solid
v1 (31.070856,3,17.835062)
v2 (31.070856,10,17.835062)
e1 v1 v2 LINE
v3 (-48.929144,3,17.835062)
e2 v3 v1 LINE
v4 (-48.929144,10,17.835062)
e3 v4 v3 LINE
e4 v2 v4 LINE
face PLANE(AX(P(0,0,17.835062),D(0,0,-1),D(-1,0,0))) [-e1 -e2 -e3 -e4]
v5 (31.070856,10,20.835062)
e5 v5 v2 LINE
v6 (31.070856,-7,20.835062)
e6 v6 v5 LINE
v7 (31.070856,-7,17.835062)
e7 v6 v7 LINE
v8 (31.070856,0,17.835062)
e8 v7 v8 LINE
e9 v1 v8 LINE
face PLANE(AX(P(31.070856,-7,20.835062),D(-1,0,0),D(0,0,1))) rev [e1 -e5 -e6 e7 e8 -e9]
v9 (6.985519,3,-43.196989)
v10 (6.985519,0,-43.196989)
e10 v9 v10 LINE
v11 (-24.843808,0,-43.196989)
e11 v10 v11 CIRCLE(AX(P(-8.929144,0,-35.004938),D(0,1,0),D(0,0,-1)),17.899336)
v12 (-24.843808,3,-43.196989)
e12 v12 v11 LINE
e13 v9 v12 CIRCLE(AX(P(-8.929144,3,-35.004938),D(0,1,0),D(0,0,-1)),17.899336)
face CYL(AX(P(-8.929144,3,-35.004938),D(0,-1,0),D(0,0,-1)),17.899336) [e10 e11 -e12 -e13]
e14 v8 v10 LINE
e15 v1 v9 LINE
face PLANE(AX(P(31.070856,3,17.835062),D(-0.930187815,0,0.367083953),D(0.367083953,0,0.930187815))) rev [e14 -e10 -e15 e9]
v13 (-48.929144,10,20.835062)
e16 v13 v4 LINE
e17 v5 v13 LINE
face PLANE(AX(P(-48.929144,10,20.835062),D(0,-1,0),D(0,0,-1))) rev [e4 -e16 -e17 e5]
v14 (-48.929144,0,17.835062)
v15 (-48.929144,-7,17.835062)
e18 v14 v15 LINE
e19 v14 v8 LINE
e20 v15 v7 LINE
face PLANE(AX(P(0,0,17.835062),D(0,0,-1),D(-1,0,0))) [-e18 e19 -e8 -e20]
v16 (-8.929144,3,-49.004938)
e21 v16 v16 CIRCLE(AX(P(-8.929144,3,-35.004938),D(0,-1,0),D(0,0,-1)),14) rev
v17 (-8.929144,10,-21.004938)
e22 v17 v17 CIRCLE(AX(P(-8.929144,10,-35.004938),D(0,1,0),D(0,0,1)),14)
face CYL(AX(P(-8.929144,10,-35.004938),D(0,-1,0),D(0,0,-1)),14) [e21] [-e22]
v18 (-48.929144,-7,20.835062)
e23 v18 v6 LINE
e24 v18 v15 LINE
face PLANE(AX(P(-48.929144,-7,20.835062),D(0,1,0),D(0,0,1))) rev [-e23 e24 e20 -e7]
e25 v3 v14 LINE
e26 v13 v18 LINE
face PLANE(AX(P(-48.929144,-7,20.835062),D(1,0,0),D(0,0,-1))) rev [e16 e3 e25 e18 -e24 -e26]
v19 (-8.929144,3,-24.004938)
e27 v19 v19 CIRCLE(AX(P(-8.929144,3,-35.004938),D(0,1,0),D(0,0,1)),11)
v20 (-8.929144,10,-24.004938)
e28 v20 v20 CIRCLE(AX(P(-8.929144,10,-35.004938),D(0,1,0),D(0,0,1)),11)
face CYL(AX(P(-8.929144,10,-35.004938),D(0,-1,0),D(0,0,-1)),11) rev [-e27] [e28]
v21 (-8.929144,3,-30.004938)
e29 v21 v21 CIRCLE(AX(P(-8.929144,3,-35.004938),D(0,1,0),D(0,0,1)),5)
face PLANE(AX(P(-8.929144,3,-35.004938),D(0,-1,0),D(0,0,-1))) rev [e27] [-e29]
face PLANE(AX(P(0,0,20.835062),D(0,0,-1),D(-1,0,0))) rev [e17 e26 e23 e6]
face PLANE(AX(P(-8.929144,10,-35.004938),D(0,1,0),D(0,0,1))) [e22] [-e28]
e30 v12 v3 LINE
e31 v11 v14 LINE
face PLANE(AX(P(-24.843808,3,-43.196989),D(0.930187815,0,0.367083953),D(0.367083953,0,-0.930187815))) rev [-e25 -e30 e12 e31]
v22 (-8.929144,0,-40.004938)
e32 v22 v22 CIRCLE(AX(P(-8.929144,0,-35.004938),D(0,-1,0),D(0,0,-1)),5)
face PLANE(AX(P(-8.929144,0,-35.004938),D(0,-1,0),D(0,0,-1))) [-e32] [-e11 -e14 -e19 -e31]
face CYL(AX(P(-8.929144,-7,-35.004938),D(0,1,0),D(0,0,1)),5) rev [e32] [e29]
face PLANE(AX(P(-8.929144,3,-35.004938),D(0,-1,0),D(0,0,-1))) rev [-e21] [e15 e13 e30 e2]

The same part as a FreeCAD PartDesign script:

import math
import FreeCAD as App
import Part
import Sketcher

V = App.Vector
Q = App.Units.Quantity

doc = App.newDocument("Part")
body = doc.addObject("PartDesign::Body", "Body")

# Sketch on XZ plane
sketch1 = body.newObject("Sketcher::SketchObject", "Sketch")
sketch1.AttachmentSupport = (doc.getObject("XZ_Plane"), [""])
sketch1.MapMode = "FlatFace"
sketch1.addGeometry(Part.LineSegment(V(-49, 18, 0), V(31, 18, 0)), False)
sketch1.addGeometry(Part.LineSegment(V(31, 18, 0), V(7, -43, 0)), False)
sketch1.addGeometry(Part.ArcOfCircle(Part.Circle(V(-9, -35, 0), V(0, 0, 1), 18), math.radians(-153), math.radians(-27)), False)
sketch1.addGeometry(Part.LineSegment(V(-25, -43, 0), V(-49, 18, 0)), False)
sketch1.addConstraint(Sketcher.Constraint("Coincident", 0, 2, 1, 1))
sketch1.addConstraint(Sketcher.Constraint("Coincident", 1, 2, 2, 2))
sketch1.addConstraint(Sketcher.Constraint("Coincident", 2, 1, 3, 1))
sketch1.addConstraint(Sketcher.Constraint("Coincident", 3, 2, 0, 1))
sketch1.addConstraint(Sketcher.Constraint("Horizontal", 0))
sketch1.addConstraint(Sketcher.Constraint("Horizontal", 1, 2, 2, 1))
sketch1.addConstraint(Sketcher.Constraint("Equal", 1, 3))
sketch1.addConstraint(Sketcher.Constraint("DistanceX", 0, 1, 0, 2, Q("80 mm")))
sketch1.addConstraint(Sketcher.Constraint("DistanceY", 2, 3, 0, 2, Q("52.84 mm")))
sketch1.addConstraint(Sketcher.Constraint("Radius", 2, Q("17.899336 mm")))
sketch1.addConstraint(Sketcher.Constraint("Distance", 1, Q("65.612611 mm")))
sketch1.addConstraint(Sketcher.Constraint("DistanceX", -1, 1, 1, 2, Q("6.985519 mm")))
sketch1.addConstraint(Sketcher.Constraint("DistanceY", 1, 2, -1, 1, Q("43.196989 mm")))
pad1 = body.newObject("PartDesign::Pad", "Pad")
pad1.Profile = sketch1
pad1.Length = 3
pad1.Reversed = True

# Sketch on XZ plane
sketch2 = body.newObject("Sketcher::SketchObject", "Sketch001")
sketch2.AttachmentSupport = (doc.getObject("XZ_Plane"), [""])
sketch2.MapMode = "FlatFace"
sketch2.AttachmentOffset = App.Placement(V(0, 0, -3), App.Rotation())
sketch2.addGeometry(Part.Circle(V(-9, -35, 0), V(0, 0, 1), 14), False)
sketch2.addGeometry(Part.Circle(V(-9, -35, 0), V(0, 0, 1), 11), False)
sketch2.addConstraint(Sketcher.Constraint("Coincident", 1, 3, 0, 3))
sketch2.addConstraint(Sketcher.Constraint("Diameter", 0, Q("28 mm")))
sketch2.addConstraint(Sketcher.Constraint("Diameter", 1, Q("22 mm")))
sketch2.addConstraint(Sketcher.Constraint("DistanceX", 0, 3, -1, 1, Q("8.929144 mm")))
sketch2.addConstraint(Sketcher.Constraint("DistanceY", 0, 3, -1, 1, Q("35.004938 mm")))
pad2 = body.newObject("PartDesign::Pad", "Pad001")
pad2.Profile = sketch2
pad2.Length = 7
pad2.Reversed = True

# Sketch on XY plane
sketch3 = body.newObject("Sketcher::SketchObject", "Sketch002")
sketch3.AttachmentSupport = (doc.getObject("XY_Plane"), [""])
sketch3.MapMode = "FlatFace"
sketch3.AttachmentOffset = App.Placement(V(0, 0, 17.835062), App.Rotation())
sketch3.addGeometry(Part.LineSegment(V(-49, 10, 0), V(-49, -7, 0)), False)
sketch3.addGeometry(Part.LineSegment(V(-49, -7, 0), V(31, -7, 0)), False)
sketch3.addGeometry(Part.LineSegment(V(31, -7, 0), V(31, 10, 0)), False)
sketch3.addGeometry(Part.LineSegment(V(31, 10, 0), V(-49, 10, 0)), False)
sketch3.addConstraint(Sketcher.Constraint("Coincident", 0, 2, 1, 1))
sketch3.addConstraint(Sketcher.Constraint("Coincident", 1, 2, 2, 1))
sketch3.addConstraint(Sketcher.Constraint("Coincident", 2, 2, 3, 1))
sketch3.addConstraint(Sketcher.Constraint("Coincident", 3, 2, 0, 1))
sketch3.addConstraint(Sketcher.Constraint("Vertical", 0))
sketch3.addConstraint(Sketcher.Constraint("Horizontal", 1))
sketch3.addConstraint(Sketcher.Constraint("Vertical", 2))
sketch3.addConstraint(Sketcher.Constraint("Horizontal", 3))
sketch3.addConstraint(Sketcher.Constraint("DistanceX", 1, 1, 1, 2, Q("80 mm")))
sketch3.addConstraint(Sketcher.Constraint("DistanceY", 0, 2, 0, 1, Q("17 mm")))
sketch3.addConstraint(Sketcher.Constraint("DistanceY", 0, 2, -1, 1, Q("7 mm")))
sketch3.addConstraint(Sketcher.Constraint("DistanceX", 0, 2, -1, 1, Q("48.929144 mm")))
pad3 = body.newObject("PartDesign::Pad", "Pad002")
pad3.Profile = sketch3
pad3.Length = 3

# Sketch on XZ plane
sketch4 = body.newObject("Sketcher::SketchObject", "Sketch003")
sketch4.AttachmentSupport = (doc.getObject("XZ_Plane"), [""])
sketch4.MapMode = "FlatFace"
sketch4.AttachmentOffset = App.Placement(V(0, 0, -3), App.Rotation())
sketch4.addGeometry(Part.Circle(V(-9, -35, 0), V(0, 0, 1), 5), False)
sketch4.addConstraint(Sketcher.Constraint("Diameter", 0, Q("10 mm")))
sketch4.addConstraint(Sketcher.Constraint("DistanceX", 0, 3, -1, 1, Q("8.929144 mm")))
sketch4.addConstraint(Sketcher.Constraint("DistanceY", 0, 3, -1, 1, Q("35.004938 mm")))
pocket1 = body.newObject("PartDesign::Pocket", "Pocket")
pocket1.Profile = sketch4
pocket1.Length = 10
pocket1.Reversed = True

doc.recompute()
